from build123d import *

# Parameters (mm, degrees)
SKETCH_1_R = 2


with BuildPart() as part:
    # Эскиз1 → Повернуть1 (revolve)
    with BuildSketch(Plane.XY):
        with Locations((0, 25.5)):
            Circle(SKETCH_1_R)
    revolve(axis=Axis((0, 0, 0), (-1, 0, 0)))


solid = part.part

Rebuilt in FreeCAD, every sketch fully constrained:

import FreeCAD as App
import Part
import Sketcher
from FreeCAD import Vector

doc = App.newDocument("Part")
body = doc.addObject("PartDesign::Body", "Body")

sketch1 = body.newObject("Sketcher::SketchObject", "Sketch")
sketch1.AttachmentSupport = (doc.getObject("XY_Plane"), [""])
sketch1.MapMode = "FlatFace"
sketch1.addGeometry(Part.Circle(Vector(0, 25.5, 0), Vector(0, 0, 1), 2), False)
sketch1.addConstraint(Sketcher.Constraint("PointOnObject", 0, 3, -2))
sketch1.addConstraint(Sketcher.Constraint("Diameter", 0, 4.0))
sketch1.addConstraint(Sketcher.Constraint("DistanceY", -1, 1, 0, 3, 25.5))
revolution = body.newObject("PartDesign::Revolution", "Revolution")
revolution.Profile = sketch1
revolution.ReferenceAxis = (sketch1, ["H_Axis"])
revolution.Angle = 360

doc.recompute()
